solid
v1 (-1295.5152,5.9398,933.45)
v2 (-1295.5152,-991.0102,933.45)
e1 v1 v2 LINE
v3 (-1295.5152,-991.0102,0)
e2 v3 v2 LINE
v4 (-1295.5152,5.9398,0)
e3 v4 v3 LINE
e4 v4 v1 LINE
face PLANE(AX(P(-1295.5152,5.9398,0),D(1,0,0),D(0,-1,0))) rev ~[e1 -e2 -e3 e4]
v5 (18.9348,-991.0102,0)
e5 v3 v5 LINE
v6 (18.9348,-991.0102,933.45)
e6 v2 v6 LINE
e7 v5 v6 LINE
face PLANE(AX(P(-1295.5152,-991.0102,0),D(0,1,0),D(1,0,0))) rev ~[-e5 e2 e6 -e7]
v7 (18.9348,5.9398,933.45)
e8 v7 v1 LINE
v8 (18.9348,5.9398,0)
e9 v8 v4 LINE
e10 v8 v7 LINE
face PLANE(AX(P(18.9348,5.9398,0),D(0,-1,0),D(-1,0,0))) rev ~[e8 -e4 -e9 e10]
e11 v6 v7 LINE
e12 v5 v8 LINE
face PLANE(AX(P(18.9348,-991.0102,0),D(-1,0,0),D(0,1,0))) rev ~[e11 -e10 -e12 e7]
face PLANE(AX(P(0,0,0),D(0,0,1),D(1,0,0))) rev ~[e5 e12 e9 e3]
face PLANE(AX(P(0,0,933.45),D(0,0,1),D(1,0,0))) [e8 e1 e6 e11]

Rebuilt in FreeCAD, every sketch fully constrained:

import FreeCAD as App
import Part
import Sketcher

V = App.Vector
Q = App.Units.Quantity

doc = App.newDocument("Part")
body = doc.addObject("PartDesign::Body", "Body")

sketch1 = doc.addObject("Sketcher::SketchObject", "Sketch")
body.addObject(sketch1)
sketch1.AttachmentSupport = (doc.XY_Plane, [""])
sketch1.MapMode = "FlatFace"
sketch1.addGeometry([
    Part.LineSegment(V(-1295.5152, 5.9398, 0), V(-1295.5152, -991.0102, 0)),
    Part.LineSegment(V(-1295.5152, -991.0102, 0), V(18.9348, -991.0102, 0)),
    Part.LineSegment(V(18.9348, -991.0102, 0), V(18.9348, 5.9398, 0)),
    Part.LineSegment(V(18.9348, 5.9398, 0), V(-1295.5152, 5.9398, 0)),
], False)
sketch1.addConstraint([
    Sketcher.Constraint("Coincident", 0, 2, 1, 1),
    Sketcher.Constraint("Coincident", 1, 2, 2, 1),
    Sketcher.Constraint("Coincident", 2, 2, 3, 1),
    Sketcher.Constraint("Coincident", 3, 2, 0, 1),
    Sketcher.Constraint("Vertical", 0),
    Sketcher.Constraint("Horizontal", 1),
    Sketcher.Constraint("Vertical", 2),
    Sketcher.Constraint("Horizontal", 3),
    Sketcher.Constraint("DistanceX", 1, 1, 1, 2, Q("51.75 in")),
    Sketcher.Constraint("DistanceY", 0, 2, 0, 1, Q("39.25 in")),
    Sketcher.Constraint("DistanceX", 0, 2, -1, 1, Q("1295.5152 mm")),
    Sketcher.Constraint("DistanceY", 0, 2, -1, 1, Q("991.0102 mm")),
])
pad1 = doc.addObject("PartDesign::Pad", "Pad")
body.addObject(pad1)
pad1.Profile = sketch1
pad1.Length = Q("36.75 in")

doc.recompute()
